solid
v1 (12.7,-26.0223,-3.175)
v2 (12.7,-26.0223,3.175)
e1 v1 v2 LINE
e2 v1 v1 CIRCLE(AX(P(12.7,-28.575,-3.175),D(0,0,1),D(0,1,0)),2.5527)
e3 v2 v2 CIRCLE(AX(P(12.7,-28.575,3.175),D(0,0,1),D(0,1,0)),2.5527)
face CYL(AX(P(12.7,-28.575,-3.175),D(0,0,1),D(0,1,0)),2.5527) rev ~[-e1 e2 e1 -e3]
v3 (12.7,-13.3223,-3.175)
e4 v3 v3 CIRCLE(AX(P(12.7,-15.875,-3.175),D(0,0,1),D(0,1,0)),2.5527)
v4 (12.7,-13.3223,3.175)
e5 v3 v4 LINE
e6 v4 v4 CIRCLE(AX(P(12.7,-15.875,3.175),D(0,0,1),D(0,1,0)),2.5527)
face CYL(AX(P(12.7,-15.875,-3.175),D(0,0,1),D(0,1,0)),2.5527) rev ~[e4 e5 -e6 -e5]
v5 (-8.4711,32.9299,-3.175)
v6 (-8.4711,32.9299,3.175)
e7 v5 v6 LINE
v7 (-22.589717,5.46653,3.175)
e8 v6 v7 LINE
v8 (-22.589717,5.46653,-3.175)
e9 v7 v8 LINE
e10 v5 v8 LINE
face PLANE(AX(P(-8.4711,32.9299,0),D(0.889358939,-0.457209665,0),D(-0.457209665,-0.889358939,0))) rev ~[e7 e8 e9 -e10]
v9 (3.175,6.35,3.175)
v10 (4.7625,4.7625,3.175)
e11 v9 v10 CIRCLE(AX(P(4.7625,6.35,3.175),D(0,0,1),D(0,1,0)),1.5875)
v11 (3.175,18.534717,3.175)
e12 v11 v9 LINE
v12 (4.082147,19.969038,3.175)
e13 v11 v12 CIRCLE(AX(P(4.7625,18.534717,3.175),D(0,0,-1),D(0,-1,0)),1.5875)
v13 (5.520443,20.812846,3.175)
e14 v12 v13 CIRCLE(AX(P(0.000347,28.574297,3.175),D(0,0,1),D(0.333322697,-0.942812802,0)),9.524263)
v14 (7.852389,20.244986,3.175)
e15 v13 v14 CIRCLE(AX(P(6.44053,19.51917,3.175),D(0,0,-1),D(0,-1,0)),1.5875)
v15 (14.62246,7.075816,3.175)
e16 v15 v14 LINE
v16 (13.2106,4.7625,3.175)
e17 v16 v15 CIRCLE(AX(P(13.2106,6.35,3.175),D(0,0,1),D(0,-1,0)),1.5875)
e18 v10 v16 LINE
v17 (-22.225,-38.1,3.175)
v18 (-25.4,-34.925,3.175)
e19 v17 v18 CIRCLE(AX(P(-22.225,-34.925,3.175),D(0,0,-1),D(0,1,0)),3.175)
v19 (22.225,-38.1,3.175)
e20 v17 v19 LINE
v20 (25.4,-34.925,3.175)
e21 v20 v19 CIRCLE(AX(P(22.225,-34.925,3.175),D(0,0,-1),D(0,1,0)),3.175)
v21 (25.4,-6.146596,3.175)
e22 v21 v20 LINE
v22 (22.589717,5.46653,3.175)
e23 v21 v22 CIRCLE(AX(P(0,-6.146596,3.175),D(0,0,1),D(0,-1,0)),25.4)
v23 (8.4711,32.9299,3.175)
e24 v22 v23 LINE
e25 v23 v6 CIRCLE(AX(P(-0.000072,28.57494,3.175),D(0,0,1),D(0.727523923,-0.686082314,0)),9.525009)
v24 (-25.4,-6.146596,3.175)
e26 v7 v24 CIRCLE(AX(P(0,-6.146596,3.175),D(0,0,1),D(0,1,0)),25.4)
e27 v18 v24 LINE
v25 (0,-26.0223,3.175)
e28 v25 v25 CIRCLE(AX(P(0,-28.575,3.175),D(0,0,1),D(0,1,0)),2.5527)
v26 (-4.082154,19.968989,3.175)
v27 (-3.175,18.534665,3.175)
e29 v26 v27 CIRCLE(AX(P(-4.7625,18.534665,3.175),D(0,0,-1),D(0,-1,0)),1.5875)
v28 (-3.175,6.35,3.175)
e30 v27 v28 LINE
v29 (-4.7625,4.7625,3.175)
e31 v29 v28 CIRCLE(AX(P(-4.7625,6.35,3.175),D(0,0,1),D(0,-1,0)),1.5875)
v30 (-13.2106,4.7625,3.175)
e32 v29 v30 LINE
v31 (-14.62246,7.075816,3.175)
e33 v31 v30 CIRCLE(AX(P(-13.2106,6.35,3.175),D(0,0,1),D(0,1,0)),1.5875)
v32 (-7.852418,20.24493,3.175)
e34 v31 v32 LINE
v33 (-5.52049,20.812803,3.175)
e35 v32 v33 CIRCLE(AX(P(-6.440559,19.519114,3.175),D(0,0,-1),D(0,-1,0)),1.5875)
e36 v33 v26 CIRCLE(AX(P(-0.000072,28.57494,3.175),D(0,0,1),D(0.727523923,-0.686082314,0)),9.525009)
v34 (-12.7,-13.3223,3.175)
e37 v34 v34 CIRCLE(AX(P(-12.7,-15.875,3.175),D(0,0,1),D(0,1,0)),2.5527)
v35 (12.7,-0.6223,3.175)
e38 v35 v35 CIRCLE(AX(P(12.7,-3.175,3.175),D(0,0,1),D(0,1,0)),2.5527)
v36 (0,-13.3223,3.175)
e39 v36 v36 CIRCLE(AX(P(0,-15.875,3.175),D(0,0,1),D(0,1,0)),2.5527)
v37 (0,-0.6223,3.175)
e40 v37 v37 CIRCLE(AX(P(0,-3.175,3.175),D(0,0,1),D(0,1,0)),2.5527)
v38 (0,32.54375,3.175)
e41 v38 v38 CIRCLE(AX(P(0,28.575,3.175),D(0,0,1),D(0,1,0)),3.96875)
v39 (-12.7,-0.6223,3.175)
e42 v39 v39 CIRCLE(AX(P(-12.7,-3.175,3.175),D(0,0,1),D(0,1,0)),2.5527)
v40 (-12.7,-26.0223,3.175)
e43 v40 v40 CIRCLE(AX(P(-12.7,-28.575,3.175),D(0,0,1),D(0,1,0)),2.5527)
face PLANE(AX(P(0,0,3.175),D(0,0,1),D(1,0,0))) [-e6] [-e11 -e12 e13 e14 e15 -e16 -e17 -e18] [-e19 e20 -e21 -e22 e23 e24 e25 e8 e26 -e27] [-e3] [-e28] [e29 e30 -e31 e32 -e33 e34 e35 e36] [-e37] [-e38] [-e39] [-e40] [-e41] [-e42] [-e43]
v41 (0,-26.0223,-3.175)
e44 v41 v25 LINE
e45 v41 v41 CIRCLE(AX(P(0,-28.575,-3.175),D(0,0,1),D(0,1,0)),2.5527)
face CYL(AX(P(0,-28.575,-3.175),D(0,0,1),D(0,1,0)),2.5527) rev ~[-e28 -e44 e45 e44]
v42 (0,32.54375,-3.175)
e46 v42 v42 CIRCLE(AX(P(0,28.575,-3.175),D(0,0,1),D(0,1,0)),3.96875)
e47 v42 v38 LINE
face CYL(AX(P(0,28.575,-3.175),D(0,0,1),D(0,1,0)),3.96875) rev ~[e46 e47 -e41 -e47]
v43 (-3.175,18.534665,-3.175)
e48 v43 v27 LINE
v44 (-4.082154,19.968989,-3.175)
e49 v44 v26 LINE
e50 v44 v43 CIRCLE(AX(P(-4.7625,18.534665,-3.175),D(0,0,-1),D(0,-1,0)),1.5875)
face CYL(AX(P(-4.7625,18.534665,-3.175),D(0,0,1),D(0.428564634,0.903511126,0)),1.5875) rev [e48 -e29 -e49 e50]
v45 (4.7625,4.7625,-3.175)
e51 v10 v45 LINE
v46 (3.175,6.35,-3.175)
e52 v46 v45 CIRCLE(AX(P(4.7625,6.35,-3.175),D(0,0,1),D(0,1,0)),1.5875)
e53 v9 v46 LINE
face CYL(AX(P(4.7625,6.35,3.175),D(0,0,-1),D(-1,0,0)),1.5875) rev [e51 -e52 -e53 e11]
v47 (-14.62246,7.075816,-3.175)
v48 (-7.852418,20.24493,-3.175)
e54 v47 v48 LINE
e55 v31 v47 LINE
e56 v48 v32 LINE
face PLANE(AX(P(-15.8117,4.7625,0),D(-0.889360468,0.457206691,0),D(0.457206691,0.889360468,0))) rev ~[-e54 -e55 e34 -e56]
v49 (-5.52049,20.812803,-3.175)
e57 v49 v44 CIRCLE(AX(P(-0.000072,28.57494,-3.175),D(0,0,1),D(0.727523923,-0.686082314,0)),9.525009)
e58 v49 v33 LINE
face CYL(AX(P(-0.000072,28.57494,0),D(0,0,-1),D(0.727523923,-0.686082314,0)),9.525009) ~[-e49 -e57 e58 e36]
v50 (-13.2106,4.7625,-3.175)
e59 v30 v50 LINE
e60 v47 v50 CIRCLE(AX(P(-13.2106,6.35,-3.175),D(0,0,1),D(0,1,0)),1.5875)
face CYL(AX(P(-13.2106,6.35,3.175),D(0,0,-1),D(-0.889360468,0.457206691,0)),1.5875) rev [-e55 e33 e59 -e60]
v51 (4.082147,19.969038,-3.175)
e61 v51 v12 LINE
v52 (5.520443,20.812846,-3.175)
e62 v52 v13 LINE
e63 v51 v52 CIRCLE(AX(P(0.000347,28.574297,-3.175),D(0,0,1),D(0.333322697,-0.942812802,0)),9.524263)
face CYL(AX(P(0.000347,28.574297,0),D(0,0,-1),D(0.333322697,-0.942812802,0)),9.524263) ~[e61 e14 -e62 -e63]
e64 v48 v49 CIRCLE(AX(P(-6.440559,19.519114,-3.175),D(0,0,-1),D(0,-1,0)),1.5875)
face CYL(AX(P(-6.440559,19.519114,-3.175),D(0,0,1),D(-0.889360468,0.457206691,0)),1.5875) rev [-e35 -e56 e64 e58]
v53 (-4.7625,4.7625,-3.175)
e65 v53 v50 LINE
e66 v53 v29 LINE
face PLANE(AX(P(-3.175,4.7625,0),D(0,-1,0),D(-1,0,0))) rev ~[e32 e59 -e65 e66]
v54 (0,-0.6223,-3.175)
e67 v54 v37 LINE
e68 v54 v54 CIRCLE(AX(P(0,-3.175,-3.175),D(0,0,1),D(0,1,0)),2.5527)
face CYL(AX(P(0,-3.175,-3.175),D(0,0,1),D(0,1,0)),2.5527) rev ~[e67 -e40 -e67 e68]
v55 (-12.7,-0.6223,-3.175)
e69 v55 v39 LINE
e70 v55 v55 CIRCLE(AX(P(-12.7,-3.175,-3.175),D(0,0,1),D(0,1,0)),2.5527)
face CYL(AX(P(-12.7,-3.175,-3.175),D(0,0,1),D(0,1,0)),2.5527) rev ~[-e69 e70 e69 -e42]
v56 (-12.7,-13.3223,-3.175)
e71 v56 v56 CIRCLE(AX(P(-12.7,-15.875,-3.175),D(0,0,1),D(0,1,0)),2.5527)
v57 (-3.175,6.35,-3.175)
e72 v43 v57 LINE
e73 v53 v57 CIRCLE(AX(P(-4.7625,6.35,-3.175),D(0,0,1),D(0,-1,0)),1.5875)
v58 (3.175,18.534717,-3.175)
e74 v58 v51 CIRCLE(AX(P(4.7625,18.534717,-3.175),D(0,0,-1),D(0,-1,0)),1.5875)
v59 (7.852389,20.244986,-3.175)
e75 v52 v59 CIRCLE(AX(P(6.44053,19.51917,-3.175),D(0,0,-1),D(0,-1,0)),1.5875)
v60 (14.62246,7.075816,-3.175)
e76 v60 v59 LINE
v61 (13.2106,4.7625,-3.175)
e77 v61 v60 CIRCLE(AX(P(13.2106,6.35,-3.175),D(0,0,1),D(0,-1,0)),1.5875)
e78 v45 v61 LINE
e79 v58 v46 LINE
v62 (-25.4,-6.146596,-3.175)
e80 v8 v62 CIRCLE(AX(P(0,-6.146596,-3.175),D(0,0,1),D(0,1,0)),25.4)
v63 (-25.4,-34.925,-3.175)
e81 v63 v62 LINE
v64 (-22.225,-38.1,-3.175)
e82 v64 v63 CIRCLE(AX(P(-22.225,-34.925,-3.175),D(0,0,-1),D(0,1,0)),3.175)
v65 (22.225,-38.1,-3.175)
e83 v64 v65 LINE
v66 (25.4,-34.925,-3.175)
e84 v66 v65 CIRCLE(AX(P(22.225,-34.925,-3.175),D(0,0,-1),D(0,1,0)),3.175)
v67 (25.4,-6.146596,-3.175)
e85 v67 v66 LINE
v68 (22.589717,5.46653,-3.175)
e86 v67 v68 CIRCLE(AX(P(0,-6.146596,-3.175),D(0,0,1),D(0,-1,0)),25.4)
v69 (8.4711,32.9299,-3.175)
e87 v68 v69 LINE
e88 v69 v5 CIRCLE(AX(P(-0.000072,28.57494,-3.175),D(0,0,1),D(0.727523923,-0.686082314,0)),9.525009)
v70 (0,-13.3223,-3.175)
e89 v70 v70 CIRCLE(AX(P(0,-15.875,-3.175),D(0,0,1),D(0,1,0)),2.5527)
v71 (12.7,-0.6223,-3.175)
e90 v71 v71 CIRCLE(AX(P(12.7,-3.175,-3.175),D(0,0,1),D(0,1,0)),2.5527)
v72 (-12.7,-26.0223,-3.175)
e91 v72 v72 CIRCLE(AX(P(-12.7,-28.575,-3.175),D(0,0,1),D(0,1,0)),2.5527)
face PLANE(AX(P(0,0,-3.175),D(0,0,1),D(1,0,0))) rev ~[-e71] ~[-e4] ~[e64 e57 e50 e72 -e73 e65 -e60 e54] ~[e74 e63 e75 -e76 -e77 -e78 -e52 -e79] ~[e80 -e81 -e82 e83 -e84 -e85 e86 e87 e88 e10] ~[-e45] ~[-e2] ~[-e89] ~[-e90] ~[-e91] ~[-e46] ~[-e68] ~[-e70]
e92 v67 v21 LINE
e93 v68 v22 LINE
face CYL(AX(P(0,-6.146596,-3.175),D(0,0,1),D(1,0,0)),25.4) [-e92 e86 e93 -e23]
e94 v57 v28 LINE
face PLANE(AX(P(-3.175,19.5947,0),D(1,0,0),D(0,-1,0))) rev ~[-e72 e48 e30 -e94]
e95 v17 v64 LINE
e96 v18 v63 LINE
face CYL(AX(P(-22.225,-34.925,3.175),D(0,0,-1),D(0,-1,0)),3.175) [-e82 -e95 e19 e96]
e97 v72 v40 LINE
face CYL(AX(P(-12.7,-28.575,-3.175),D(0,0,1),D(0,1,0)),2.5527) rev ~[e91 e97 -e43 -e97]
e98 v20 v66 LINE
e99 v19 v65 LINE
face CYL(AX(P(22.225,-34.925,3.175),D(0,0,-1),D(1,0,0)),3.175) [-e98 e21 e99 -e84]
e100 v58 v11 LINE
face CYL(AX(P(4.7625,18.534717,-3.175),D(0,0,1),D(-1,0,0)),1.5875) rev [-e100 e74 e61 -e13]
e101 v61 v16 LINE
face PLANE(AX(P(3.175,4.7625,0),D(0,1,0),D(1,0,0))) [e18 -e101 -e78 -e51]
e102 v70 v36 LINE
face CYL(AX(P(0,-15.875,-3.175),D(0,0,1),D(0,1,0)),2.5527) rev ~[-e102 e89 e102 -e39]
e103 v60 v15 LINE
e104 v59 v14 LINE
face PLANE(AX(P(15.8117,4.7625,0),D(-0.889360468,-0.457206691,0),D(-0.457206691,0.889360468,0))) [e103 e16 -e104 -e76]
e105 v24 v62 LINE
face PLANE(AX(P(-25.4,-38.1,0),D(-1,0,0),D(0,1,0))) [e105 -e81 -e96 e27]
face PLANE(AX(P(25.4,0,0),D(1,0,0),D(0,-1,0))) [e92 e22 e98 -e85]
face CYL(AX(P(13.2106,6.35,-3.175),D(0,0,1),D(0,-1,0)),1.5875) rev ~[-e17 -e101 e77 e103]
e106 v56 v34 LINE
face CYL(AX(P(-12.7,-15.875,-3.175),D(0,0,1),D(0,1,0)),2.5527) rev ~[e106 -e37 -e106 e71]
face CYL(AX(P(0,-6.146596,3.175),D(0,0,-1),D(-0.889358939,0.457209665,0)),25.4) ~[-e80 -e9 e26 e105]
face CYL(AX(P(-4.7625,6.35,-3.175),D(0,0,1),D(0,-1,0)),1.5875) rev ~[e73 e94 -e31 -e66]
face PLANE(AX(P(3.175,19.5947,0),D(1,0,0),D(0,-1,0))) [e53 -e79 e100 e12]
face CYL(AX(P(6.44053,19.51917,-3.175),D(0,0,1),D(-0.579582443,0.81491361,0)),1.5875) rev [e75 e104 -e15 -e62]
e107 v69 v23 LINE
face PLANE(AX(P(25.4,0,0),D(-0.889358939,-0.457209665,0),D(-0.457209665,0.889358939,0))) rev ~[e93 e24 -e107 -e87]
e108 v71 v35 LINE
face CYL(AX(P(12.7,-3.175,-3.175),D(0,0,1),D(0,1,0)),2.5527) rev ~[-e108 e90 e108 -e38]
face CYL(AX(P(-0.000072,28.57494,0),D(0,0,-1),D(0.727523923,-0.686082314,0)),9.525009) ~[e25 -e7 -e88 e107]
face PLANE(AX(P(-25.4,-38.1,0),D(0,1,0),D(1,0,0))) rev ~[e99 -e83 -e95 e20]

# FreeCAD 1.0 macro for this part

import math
import FreeCAD as App
import Part
import Sketcher

V = App.Vector
Q = App.Units.Quantity


def edges_at(feature, points):
    """Names of the edges that pass closest to the given points."""
    edges = feature.Shape.Edges
    near = lambda p: min(range(len(edges)), key=lambda i: edges[i].distToShape(Part.Vertex(*p))[0])
    return sorted({f"Edge{near(p) + 1}" for p in points})

doc = App.newDocument("Part")
body = doc.addObject("PartDesign::Body", "Body")

# Sketch on XY plane
sketch1 = doc.addObject("Sketcher::SketchObject", "Sketch")
body.addObject(sketch1)
sketch1.AttachmentSupport = (doc.XY_Plane, [""])
sketch1.MapMode = "FlatFace"
sketch1.addGeometry(Part.LineSegment(V(25.4, -38.1, 0), V(25.4, 0, 0)), False)
sketch1.addGeometry(Part.LineSegment(V(25.4, 0, 0), V(8.5, 32.9, 0)), False)
sketch1.addGeometry(Part.ArcOfCircle(Part.Circle(V(0, 28.6, 0), V(0, 0, 1), 9.5), math.radians(27), math.radians(153)), False)
sketch1.addGeometry(Part.LineSegment(V(-8.5, 32.9, 0), V(-25.4, 0, 0)), False)
sketch1.addGeometry(Part.LineSegment(V(-25.4, 0, 0), V(-25.4, -38.1, 0)), False)
sketch1.addGeometry(Part.LineSegment(V(-25.4, -38.1, 0), V(25.4, -38.1, 0)), False)
sketch1.addGeometry(Part.LineSegment(V(-15.8, 4.8, 0), V(-6.9, 22, 0)), False)
sketch1.addGeometry(Part.ArcOfCircle(Part.Circle(V(0, 28.6, 0), V(0, 0, 1), 9.5), math.radians(-137), math.radians(-109)), False)
sketch1.addGeometry(Part.LineSegment(V(-3.2, 19.6, 0), V(-3.2, 4.8, 0)), False)
sketch1.addGeometry(Part.LineSegment(V(-3.2, 4.8, 0), V(-15.8, 4.8, 0)), False)
sketch1.addGeometry(Part.LineSegment(V(3.2, 4.8, 0), V(3.2, 19.6, 0)), False)
sketch1.addGeometry(Part.ArcOfCircle(Part.Circle(V(0, 28.6, 0), V(0, 0, 1), 9.5), math.radians(-71), math.radians(-43)), False)
sketch1.addGeometry(Part.LineSegment(V(6.9, 22, 0), V(15.8, 4.8, 0)), False)
sketch1.addGeometry(Part.LineSegment(V(15.8, 4.8, 0), V(3.2, 4.8, 0)), False)
sketch1.addConstraint(Sketcher.Constraint("Coincident", 0, 2, 1, 1))
sketch1.addConstraint(Sketcher.Constraint("Tangent", 1, 2, 2, 1))
sketch1.addConstraint(Sketcher.Constraint("Tangent", 2, 2, 3, 1))
sketch1.addConstraint(Sketcher.Constraint("Coincident", 3, 2, 4, 1))
sketch1.addConstraint(Sketcher.Constraint("Coincident", 4, 2, 5, 1))
sketch1.addConstraint(Sketcher.Constraint("Coincident", 5, 2, 0, 1))
sketch1.addConstraint(Sketcher.Constraint("Coincident", 6, 2, 7, 1))
sketch1.addConstraint(Sketcher.Constraint("Coincident", 7, 2, 8, 1))
sketch1.addConstraint(Sketcher.Constraint("Coincident", 8, 2, 9, 1))
sketch1.addConstraint(Sketcher.Constraint("Coincident", 9, 2, 6, 1))
sketch1.addConstraint(Sketcher.Constraint("Coincident", 10, 2, 11, 1))
sketch1.addConstraint(Sketcher.Constraint("Coincident", 11, 2, 12, 1))
sketch1.addConstraint(Sketcher.Constraint("Coincident", 12, 2, 13, 1))
sketch1.addConstraint(Sketcher.Constraint("Coincident", 13, 2, 10, 1))
sketch1.addConstraint(Sketcher.Constraint("Vertical", 0))
sketch1.addConstraint(Sketcher.Constraint("Vertical", 4))
sketch1.addConstraint(Sketcher.Constraint("Horizontal", 5))
sketch1.addConstraint(Sketcher.Constraint("Vertical", 8))
sketch1.addConstraint(Sketcher.Constraint("Horizontal", 9))
sketch1.addConstraint(Sketcher.Constraint("Vertical", 10))
sketch1.addConstraint(Sketcher.Constraint("Horizontal", 13))
sketch1.addConstraint(Sketcher.Constraint("Coincident", 7, 3, 2, 3))
sketch1.addConstraint(Sketcher.Constraint("Coincident", 11, 3, 2, 3))
sketch1.addConstraint(Sketcher.Constraint("Equal", 2, 7))
sketch1.addConstraint(Sketcher.Constraint("Equal", 7, 11))
sketch1.addConstraint(Sketcher.Constraint("Symmetric", 0, 2, 3, 2, -1, 1))
sketch1.addConstraint(Sketcher.Constraint("Symmetric", 1, 2, 2, 2, -2))
sketch1.addConstraint(Sketcher.Constraint("Symmetric", 9, 2, 12, 2, -2))
sketch1.addConstraint(Sketcher.Constraint("Parallel", 3, 6))
sketch1.addConstraint(Sketcher.Constraint("Parallel", 1, 12))
sketch1.addConstraint(Sketcher.Constraint("Horizontal", 7, 2, 10, 2))
sketch1.addConstraint(Sketcher.Constraint("DistanceX", 5, 1, 5, 2, Q("2 in")))
sketch1.addConstraint(Sketcher.Constraint("DistanceY", 0, 1, 0, 2, Q("1.5 in")))
sketch1.addConstraint(Sketcher.Constraint("Radius", 2, Q("0.375 in")))
sketch1.addConstraint(Sketcher.Constraint("DistanceX", 7, 2, 10, 2, Q("0.25 in")))
sketch1.addConstraint(Sketcher.Constraint("DistanceY", -1, 1, 2, 3, Q("1.125 in")))
sketch1.addConstraint(Sketcher.Constraint("DistanceY", -1, 1, 8, 2, Q("0.1875 in")))
sketch1.addConstraint(Sketcher.Constraint("DistanceX", 9, 2, 9, 1, Q("0.4975 in")))
pad1 = doc.addObject("PartDesign::Pad", "Pad")
body.addObject(pad1)
pad1.Profile = sketch1
pad1.Length = Q("0.25 in")
pad1.Midplane = True

# Sketch on XY plane
sketch2 = doc.addObject("Sketcher::SketchObject", "Sketch001")
body.addObject(sketch2)
sketch2.AttachmentSupport = (doc.XY_Plane, [""])
sketch2.MapMode = "FlatFace"
sketch2.AttachmentOffset = App.Placement(V(0, 0, -0.125 * 25.4), App.Rotation())
sketch2.addGeometry(Part.Circle(V(12.7, -3.2, 0), V(0, 0, 1), 2.6), False)
sketch2.addGeometry(Part.Circle(V(-12.7, -3.2, 0), V(0, 0, 1), 2.6), False)
sketch2.addGeometry(Part.Circle(V(0, -3.2, 0), V(0, 0, 1), 2.6), False)
sketch2.addGeometry(Part.Circle(V(12.7, -15.9, 0), V(0, 0, 1), 2.6), False)
sketch2.addGeometry(Part.Circle(V(0, -15.9, 0), V(0, 0, 1), 2.6), False)
sketch2.addGeometry(Part.Circle(V(-12.7, -15.9, 0), V(0, 0, 1), 2.6), False)
sketch2.addGeometry(Part.Circle(V(12.7, -28.6, 0), V(0, 0, 1), 2.6), False)
sketch2.addGeometry(Part.Circle(V(0, -28.6, 0), V(0, 0, 1), 2.6), False)
sketch2.addGeometry(Part.Circle(V(-12.7, -28.6, 0), V(0, 0, 1), 2.6), False)
sketch2.addConstraint(Sketcher.Constraint("Equal", 0, 1))
sketch2.addConstraint(Sketcher.Constraint("Equal", 1, 2))
sketch2.addConstraint(Sketcher.Constraint("Equal", 2, 3))
sketch2.addConstraint(Sketcher.Constraint("Equal", 3, 4))
sketch2.addConstraint(Sketcher.Constraint("Equal", 4, 5))
sketch2.addConstraint(Sketcher.Constraint("Equal", 5, 6))
sketch2.addConstraint(Sketcher.Constraint("Equal", 6, 7))
sketch2.addConstraint(Sketcher.Constraint("Equal", 7, 8))
sketch2.addConstraint(Sketcher.Constraint("Symmetric", 0, 3, 1, 3, -2))
sketch2.addConstraint(Sketcher.Constraint("Symmetric", 3, 3, 5, 3, -2))
sketch2.addConstraint(Sketcher.Constraint("Symmetric", 6, 3, 8, 3, -2))
sketch2.addConstraint(Sketcher.Constraint("PointOnObject", 2, 3, -2))
sketch2.addConstraint(Sketcher.Constraint("PointOnObject", 4, 3, -2))
sketch2.addConstraint(Sketcher.Constraint("PointOnObject", 7, 3, -2))
sketch2.addConstraint(Sketcher.Constraint("Horizontal", 1, 3, 2, 3))
sketch2.addConstraint(Sketcher.Constraint("Horizontal", 3, 3, 4, 3))
sketch2.addConstraint(Sketcher.Constraint("Horizontal", 6, 3, 7, 3))
sketch2.addConstraint(Sketcher.Constraint("Vertical", 0, 3, 3, 3))
sketch2.addConstraint(Sketcher.Constraint("Vertical", 3, 3, 6, 3))
sketch2.addConstraint(Sketcher.Constraint("Diameter", 0, Q("0.201 in")))
sketch2.addConstraint(Sketcher.Constraint("DistanceX", 1, 3, 0, 3, Q("1 in")))
sketch2.addConstraint(Sketcher.Constraint("DistanceY", 6, 3, 0, 3, Q("1 in")))
sketch2.addConstraint(Sketcher.Constraint("DistanceY", 3, 3, 0, 3, Q("0.5 in")))
sketch2.addConstraint(Sketcher.Constraint("DistanceY", 0, 3, -1, 1, Q("0.125 in")))
doc.recompute()
hole = doc.addObject("PartDesign::Hole", "Hole")
body.addObject(hole)
hole.Profile = sketch2
hole.ThreadType = "None"
hole.Diameter = Q("0.201 in")
hole.DepthType = "ThroughAll"
hole.Reversed = True

# Sketch on XY plane
sketch3 = doc.addObject("Sketcher::SketchObject", "Sketch002")
body.addObject(sketch3)
sketch3.AttachmentSupport = (doc.XY_Plane, [""])
sketch3.MapMode = "FlatFace"
sketch3.AttachmentOffset = App.Placement(V(0, 0, -0.125 * 25.4), App.Rotation())
sketch3.addGeometry(Part.Circle(V(0, 28.6, 0), V(0, 0, 1), 4), False)
sketch3.addConstraint(Sketcher.Constraint("PointOnObject", 0, 3, -2))
sketch3.addConstraint(Sketcher.Constraint("Diameter", 0, Q("0.3125 in")))
sketch3.addConstraint(Sketcher.Constraint("DistanceY", -1, 1, 0, 3, Q("1.125 in")))
doc.recompute()
hole2 = doc.addObject("PartDesign::Hole", "Hole001")
body.addObject(hole2)
hole2.Profile = sketch3
hole2.ThreadType = "None"
hole2.Diameter = Q("0.3125 in")
hole2.DepthType = "ThroughAll"
hole2.Reversed = True
doc.recompute()

fillet = doc.addObject("PartDesign::Fillet", "Fillet")
body.addObject(fillet)
fillet.Base = (hole2, edges_at(hole2, [(-25.4, -38.1, 0), (25.4, -38.1, 0)]))
fillet.Radius = Q("0.125 in")
doc.recompute()

fillet2 = doc.addObject("PartDesign::Fillet", "Fillet001")
body.addObject(fillet2)
fillet2.Base = (fillet, edges_at(fillet, [
    (-15.812, 4.763, 0),
    (-6.93, 22.04, 0),
    (-3.175, 19.595, 0),
    (-3.175, 4.763, 0),
    (3.175, 4.763, 0),
    (3.175, 19.595, 0),
    (6.93, 22.04, 0),
    (15.812, 4.763, 0),
]))
fillet2.Radius = Q("0.0625 in")
doc.recompute()

fillet3 = doc.addObject("PartDesign::Fillet", "Fillet002")
body.addObject(fillet3)
fillet3.Base = (fillet2, edges_at(fillet2, [(25.4, 0, 0), (-25.4, 0, 0)]))
fillet3.Radius = Q("1 in")

doc.recompute()
